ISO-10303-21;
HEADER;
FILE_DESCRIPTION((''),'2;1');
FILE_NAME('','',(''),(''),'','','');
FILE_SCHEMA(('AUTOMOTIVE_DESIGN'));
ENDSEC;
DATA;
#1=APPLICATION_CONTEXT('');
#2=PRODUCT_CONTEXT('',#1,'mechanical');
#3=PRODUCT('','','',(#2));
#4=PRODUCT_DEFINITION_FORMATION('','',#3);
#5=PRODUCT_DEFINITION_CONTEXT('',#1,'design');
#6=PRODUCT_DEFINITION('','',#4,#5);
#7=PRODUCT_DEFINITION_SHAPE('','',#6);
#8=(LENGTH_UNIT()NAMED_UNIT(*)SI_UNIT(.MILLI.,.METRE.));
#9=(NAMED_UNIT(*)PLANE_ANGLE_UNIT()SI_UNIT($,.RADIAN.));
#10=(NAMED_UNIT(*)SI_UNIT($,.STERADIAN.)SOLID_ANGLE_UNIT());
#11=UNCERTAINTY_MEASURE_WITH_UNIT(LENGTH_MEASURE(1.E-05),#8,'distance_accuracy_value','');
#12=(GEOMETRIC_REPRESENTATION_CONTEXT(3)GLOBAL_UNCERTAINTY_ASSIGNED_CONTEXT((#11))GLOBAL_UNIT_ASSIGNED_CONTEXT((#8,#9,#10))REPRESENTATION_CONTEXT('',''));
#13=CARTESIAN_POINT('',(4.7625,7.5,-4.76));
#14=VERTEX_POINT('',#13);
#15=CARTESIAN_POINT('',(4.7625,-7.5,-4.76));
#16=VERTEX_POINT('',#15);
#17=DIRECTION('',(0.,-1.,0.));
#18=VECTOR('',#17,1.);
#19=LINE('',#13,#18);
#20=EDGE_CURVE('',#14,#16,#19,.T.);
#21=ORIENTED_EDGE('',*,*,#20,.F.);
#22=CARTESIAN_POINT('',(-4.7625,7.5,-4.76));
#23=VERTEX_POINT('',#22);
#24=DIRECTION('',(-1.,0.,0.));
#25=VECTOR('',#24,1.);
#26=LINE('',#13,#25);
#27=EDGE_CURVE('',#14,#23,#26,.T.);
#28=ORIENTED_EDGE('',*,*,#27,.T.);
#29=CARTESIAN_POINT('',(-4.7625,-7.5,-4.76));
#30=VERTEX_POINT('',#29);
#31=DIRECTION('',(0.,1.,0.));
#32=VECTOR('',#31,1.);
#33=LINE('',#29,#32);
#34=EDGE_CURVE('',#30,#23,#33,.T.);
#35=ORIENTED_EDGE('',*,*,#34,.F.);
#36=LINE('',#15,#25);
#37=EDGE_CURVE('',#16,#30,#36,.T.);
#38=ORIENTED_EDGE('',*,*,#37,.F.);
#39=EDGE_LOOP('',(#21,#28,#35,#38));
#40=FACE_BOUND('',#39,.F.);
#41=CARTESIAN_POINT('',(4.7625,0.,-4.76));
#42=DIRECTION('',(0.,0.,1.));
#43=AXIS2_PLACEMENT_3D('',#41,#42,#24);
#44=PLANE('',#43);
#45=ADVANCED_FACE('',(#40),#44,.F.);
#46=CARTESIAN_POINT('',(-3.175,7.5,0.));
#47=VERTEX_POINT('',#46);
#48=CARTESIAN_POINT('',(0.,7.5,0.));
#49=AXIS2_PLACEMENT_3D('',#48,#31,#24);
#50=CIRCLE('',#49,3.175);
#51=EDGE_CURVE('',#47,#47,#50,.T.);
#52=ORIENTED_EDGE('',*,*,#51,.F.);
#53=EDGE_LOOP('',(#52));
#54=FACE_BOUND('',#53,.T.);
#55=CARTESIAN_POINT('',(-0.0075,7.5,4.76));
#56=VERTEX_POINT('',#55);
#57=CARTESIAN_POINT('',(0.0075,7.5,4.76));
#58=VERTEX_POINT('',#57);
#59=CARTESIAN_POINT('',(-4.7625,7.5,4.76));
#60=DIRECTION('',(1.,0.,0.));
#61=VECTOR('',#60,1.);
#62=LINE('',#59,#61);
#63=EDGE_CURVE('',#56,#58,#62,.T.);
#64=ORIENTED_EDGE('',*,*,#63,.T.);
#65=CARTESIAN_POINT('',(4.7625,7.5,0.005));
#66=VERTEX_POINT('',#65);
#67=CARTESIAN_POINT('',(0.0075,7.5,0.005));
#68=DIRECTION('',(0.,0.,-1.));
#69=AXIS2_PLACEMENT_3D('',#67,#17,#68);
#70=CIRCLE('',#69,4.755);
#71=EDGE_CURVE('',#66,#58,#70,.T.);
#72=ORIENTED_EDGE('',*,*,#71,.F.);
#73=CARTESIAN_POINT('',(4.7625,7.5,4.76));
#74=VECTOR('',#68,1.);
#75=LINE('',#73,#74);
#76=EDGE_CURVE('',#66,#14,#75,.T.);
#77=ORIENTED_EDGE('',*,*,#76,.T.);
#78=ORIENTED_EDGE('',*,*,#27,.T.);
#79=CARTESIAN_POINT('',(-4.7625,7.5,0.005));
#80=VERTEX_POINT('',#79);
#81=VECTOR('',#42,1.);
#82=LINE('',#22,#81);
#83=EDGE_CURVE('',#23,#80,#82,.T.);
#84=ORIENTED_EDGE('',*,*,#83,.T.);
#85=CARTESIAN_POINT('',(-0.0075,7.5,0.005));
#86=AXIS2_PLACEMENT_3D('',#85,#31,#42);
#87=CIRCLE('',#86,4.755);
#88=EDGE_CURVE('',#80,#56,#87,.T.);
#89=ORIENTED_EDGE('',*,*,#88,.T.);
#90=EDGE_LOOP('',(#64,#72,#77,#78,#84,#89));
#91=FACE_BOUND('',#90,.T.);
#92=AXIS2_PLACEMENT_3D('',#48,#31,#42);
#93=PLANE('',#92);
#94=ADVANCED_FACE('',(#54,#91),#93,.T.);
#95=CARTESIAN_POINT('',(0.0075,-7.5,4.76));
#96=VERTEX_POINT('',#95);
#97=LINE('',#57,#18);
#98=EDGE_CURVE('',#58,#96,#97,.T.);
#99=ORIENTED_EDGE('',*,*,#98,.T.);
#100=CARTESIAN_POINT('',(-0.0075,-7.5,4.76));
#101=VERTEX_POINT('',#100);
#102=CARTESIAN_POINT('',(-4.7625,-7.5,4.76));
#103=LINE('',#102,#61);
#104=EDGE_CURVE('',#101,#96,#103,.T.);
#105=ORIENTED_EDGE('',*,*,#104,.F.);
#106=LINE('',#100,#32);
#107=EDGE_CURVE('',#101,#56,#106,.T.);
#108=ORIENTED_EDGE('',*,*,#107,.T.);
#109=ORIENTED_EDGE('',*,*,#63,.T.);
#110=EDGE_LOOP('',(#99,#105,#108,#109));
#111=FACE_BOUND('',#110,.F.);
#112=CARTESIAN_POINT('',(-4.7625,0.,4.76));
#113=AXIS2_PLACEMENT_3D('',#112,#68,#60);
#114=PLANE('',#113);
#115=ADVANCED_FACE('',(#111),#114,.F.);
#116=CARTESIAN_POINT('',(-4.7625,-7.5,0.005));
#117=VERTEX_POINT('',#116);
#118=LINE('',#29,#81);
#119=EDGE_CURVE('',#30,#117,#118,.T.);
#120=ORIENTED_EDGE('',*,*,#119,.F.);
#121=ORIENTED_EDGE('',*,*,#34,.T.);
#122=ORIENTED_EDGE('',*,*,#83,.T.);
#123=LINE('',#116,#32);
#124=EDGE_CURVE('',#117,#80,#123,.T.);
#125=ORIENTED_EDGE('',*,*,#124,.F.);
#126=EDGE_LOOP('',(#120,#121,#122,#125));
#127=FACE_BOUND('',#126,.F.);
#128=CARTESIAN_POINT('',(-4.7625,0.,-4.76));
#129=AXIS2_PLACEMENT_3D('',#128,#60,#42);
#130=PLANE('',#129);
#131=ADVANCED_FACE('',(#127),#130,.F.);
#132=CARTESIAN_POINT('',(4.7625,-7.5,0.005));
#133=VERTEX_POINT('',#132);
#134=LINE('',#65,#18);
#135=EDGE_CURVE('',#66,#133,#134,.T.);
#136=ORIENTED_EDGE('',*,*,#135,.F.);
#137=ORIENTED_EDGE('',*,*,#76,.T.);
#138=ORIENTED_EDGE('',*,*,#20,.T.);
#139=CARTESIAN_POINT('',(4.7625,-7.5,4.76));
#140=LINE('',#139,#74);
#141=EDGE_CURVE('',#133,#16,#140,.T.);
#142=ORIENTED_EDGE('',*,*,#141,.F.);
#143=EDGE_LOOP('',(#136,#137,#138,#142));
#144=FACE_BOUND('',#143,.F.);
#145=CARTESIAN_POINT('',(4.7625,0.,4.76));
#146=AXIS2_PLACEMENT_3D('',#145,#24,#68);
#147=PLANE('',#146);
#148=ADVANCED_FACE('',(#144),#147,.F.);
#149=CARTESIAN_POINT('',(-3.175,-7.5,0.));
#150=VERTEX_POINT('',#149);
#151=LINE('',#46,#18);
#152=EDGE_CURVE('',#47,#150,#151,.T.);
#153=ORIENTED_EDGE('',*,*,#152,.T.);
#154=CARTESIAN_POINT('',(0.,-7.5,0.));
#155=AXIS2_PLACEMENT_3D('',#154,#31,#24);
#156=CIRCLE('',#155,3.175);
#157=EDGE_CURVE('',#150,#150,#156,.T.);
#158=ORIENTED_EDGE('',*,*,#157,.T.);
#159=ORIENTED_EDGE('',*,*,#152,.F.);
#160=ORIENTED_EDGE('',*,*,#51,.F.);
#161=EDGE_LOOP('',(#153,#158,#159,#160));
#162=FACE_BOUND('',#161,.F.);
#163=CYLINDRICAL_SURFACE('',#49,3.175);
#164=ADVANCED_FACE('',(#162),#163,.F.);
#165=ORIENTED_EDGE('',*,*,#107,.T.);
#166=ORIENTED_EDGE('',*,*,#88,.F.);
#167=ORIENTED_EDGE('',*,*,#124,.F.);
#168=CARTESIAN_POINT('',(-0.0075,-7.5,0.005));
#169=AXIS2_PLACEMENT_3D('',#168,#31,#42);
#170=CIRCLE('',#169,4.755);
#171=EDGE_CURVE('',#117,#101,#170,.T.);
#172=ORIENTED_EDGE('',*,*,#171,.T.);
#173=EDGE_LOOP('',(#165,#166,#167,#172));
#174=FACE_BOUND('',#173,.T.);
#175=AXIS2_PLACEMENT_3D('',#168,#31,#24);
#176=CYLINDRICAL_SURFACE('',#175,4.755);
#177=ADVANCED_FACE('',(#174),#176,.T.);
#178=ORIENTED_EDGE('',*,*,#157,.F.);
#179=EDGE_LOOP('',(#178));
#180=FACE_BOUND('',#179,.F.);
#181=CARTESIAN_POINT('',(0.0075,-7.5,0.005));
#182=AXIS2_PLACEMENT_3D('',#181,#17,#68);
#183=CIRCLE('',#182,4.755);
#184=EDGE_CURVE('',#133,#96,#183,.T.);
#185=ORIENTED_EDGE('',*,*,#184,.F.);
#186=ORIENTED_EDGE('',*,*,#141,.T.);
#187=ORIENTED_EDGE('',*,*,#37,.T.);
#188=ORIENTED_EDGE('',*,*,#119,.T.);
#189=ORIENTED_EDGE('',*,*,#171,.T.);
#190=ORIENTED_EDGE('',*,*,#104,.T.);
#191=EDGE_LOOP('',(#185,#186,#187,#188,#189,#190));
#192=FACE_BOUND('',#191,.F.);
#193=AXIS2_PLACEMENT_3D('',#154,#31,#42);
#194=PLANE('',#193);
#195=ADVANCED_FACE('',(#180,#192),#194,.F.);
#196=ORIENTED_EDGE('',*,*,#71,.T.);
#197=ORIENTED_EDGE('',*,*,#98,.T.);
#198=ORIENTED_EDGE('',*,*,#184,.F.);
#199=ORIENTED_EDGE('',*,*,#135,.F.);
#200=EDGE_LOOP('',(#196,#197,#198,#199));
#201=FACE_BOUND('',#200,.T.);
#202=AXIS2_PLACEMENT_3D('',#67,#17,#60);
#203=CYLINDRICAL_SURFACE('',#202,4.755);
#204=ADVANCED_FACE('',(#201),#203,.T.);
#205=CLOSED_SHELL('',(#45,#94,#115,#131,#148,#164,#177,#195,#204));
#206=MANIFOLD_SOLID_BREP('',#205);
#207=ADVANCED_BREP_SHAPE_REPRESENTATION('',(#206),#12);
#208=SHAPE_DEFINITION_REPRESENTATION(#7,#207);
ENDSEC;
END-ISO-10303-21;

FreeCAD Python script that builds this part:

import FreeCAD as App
import Part
import Sketcher

V = App.Vector


def edges_at(feature, points):
    """Names of the edges that pass closest to the given points."""
    edges = feature.Shape.Edges
    near = lambda p: min(range(len(edges)), key=lambda i: edges[i].distToShape(Part.Vertex(*p))[0])
    return sorted({f"Edge{near(p) + 1}" for p in points})


def add_polygon(sketch, points):
    """Adds a closed chain of lines whose ends are joined by coincident constraints."""
    first, n = sketch.GeometryCount, len(points)
    for a, b in zip(points, points[1:] + points[:1]):
        sketch.addGeometry(Part.LineSegment(App.Vector(*a, 0), App.Vector(*b, 0)), False)
    for i in range(n):
        sketch.addConstraint(Sketcher.Constraint("Coincident", first + i, 2, first + (i + 1) % n, 1))

doc = App.newDocument("Part")
params = doc.addObject("Spreadsheet::Sheet", "Params")
for row, (alias, value) in enumerate([
    ("sketch1_height", "9.52 mm"),
    ("pad1_length", "15 mm"),
    ("sketch2_diameter", "6.35 mm"),
    ("pocket1_length", "15 mm"),
    ("fillet_radius", "4.755 mm"),
], start=1):
    params.set(f"A{row}", alias)
    params.set(f"B{row}", "=" + value)
    params.setAlias(f"B{row}", alias)

body = doc.addObject("PartDesign::Body", "Body")

# Sketch on XZ plane
sketch1 = body.newObject("Sketcher::SketchObject", "Sketch")
sketch1.AttachmentSupport = (doc.getObject("XZ_Plane"), [""])
sketch1.MapMode = "FlatFace"
add_polygon(sketch1, [(5, 5), (5, -5), (-5, -5), (-5, 5)])  # lines 0-3
sketch1.addConstraint([
    Sketcher.Constraint("Vertical", 0),
    Sketcher.Constraint("Horizontal", 1),
    Sketcher.Constraint("Vertical", 2),
    Sketcher.Constraint("Horizontal", 3),
    Sketcher.Constraint("Symmetric", 0, 2, 2, 2, -1, 1),
    Sketcher.Constraint("DistanceY", 0, 2, 0, 1, 9.52),
    Sketcher.Constraint("DistanceX", 1, 2, 1, 1, 9.525),
])
sketch1.setExpression("Constraints[9]", "Params.sketch1_height")
pad1 = body.newObject("PartDesign::Pad", "Pad")
pad1.Profile = sketch1
pad1.setExpression("Length", "Params.pad1_length")
pad1.Midplane = True

# Sketch on XZ plane
sketch2 = body.newObject("Sketcher::SketchObject", "Sketch001")
sketch2.AttachmentSupport = (doc.getObject("XZ_Plane"), [""])
sketch2.MapMode = "FlatFace"
sketch2.AttachmentOffset = App.Placement(V(0, 0, -7.5), App.Rotation())
sketch2.addGeometry(Part.Circle(V(0, 0, 0), V(0, 0, 1), 3.2), False)
sketch2.addConstraint([
    Sketcher.Constraint("Coincident", 0, 3, -1, 1),
    Sketcher.Constraint("Diameter", 0, 6.35),
])
sketch2.setExpression("Constraints[1]", "Params.sketch2_diameter")
pocket1 = body.newObject("PartDesign::Pocket", "Pocket")
pocket1.Profile = sketch2
pocket1.setExpression("Length", "Params.pocket1_length")
pocket1.Reversed = True
doc.recompute()

fillet = body.newObject("PartDesign::Fillet", "Fillet")
fillet.Base = (pocket1, edges_at(pocket1, [(-4.763, 0, 4.76), (4.763, 0, 4.76)]))
fillet.setExpression("Radius", "Params.fillet_radius")

doc.recompute()
